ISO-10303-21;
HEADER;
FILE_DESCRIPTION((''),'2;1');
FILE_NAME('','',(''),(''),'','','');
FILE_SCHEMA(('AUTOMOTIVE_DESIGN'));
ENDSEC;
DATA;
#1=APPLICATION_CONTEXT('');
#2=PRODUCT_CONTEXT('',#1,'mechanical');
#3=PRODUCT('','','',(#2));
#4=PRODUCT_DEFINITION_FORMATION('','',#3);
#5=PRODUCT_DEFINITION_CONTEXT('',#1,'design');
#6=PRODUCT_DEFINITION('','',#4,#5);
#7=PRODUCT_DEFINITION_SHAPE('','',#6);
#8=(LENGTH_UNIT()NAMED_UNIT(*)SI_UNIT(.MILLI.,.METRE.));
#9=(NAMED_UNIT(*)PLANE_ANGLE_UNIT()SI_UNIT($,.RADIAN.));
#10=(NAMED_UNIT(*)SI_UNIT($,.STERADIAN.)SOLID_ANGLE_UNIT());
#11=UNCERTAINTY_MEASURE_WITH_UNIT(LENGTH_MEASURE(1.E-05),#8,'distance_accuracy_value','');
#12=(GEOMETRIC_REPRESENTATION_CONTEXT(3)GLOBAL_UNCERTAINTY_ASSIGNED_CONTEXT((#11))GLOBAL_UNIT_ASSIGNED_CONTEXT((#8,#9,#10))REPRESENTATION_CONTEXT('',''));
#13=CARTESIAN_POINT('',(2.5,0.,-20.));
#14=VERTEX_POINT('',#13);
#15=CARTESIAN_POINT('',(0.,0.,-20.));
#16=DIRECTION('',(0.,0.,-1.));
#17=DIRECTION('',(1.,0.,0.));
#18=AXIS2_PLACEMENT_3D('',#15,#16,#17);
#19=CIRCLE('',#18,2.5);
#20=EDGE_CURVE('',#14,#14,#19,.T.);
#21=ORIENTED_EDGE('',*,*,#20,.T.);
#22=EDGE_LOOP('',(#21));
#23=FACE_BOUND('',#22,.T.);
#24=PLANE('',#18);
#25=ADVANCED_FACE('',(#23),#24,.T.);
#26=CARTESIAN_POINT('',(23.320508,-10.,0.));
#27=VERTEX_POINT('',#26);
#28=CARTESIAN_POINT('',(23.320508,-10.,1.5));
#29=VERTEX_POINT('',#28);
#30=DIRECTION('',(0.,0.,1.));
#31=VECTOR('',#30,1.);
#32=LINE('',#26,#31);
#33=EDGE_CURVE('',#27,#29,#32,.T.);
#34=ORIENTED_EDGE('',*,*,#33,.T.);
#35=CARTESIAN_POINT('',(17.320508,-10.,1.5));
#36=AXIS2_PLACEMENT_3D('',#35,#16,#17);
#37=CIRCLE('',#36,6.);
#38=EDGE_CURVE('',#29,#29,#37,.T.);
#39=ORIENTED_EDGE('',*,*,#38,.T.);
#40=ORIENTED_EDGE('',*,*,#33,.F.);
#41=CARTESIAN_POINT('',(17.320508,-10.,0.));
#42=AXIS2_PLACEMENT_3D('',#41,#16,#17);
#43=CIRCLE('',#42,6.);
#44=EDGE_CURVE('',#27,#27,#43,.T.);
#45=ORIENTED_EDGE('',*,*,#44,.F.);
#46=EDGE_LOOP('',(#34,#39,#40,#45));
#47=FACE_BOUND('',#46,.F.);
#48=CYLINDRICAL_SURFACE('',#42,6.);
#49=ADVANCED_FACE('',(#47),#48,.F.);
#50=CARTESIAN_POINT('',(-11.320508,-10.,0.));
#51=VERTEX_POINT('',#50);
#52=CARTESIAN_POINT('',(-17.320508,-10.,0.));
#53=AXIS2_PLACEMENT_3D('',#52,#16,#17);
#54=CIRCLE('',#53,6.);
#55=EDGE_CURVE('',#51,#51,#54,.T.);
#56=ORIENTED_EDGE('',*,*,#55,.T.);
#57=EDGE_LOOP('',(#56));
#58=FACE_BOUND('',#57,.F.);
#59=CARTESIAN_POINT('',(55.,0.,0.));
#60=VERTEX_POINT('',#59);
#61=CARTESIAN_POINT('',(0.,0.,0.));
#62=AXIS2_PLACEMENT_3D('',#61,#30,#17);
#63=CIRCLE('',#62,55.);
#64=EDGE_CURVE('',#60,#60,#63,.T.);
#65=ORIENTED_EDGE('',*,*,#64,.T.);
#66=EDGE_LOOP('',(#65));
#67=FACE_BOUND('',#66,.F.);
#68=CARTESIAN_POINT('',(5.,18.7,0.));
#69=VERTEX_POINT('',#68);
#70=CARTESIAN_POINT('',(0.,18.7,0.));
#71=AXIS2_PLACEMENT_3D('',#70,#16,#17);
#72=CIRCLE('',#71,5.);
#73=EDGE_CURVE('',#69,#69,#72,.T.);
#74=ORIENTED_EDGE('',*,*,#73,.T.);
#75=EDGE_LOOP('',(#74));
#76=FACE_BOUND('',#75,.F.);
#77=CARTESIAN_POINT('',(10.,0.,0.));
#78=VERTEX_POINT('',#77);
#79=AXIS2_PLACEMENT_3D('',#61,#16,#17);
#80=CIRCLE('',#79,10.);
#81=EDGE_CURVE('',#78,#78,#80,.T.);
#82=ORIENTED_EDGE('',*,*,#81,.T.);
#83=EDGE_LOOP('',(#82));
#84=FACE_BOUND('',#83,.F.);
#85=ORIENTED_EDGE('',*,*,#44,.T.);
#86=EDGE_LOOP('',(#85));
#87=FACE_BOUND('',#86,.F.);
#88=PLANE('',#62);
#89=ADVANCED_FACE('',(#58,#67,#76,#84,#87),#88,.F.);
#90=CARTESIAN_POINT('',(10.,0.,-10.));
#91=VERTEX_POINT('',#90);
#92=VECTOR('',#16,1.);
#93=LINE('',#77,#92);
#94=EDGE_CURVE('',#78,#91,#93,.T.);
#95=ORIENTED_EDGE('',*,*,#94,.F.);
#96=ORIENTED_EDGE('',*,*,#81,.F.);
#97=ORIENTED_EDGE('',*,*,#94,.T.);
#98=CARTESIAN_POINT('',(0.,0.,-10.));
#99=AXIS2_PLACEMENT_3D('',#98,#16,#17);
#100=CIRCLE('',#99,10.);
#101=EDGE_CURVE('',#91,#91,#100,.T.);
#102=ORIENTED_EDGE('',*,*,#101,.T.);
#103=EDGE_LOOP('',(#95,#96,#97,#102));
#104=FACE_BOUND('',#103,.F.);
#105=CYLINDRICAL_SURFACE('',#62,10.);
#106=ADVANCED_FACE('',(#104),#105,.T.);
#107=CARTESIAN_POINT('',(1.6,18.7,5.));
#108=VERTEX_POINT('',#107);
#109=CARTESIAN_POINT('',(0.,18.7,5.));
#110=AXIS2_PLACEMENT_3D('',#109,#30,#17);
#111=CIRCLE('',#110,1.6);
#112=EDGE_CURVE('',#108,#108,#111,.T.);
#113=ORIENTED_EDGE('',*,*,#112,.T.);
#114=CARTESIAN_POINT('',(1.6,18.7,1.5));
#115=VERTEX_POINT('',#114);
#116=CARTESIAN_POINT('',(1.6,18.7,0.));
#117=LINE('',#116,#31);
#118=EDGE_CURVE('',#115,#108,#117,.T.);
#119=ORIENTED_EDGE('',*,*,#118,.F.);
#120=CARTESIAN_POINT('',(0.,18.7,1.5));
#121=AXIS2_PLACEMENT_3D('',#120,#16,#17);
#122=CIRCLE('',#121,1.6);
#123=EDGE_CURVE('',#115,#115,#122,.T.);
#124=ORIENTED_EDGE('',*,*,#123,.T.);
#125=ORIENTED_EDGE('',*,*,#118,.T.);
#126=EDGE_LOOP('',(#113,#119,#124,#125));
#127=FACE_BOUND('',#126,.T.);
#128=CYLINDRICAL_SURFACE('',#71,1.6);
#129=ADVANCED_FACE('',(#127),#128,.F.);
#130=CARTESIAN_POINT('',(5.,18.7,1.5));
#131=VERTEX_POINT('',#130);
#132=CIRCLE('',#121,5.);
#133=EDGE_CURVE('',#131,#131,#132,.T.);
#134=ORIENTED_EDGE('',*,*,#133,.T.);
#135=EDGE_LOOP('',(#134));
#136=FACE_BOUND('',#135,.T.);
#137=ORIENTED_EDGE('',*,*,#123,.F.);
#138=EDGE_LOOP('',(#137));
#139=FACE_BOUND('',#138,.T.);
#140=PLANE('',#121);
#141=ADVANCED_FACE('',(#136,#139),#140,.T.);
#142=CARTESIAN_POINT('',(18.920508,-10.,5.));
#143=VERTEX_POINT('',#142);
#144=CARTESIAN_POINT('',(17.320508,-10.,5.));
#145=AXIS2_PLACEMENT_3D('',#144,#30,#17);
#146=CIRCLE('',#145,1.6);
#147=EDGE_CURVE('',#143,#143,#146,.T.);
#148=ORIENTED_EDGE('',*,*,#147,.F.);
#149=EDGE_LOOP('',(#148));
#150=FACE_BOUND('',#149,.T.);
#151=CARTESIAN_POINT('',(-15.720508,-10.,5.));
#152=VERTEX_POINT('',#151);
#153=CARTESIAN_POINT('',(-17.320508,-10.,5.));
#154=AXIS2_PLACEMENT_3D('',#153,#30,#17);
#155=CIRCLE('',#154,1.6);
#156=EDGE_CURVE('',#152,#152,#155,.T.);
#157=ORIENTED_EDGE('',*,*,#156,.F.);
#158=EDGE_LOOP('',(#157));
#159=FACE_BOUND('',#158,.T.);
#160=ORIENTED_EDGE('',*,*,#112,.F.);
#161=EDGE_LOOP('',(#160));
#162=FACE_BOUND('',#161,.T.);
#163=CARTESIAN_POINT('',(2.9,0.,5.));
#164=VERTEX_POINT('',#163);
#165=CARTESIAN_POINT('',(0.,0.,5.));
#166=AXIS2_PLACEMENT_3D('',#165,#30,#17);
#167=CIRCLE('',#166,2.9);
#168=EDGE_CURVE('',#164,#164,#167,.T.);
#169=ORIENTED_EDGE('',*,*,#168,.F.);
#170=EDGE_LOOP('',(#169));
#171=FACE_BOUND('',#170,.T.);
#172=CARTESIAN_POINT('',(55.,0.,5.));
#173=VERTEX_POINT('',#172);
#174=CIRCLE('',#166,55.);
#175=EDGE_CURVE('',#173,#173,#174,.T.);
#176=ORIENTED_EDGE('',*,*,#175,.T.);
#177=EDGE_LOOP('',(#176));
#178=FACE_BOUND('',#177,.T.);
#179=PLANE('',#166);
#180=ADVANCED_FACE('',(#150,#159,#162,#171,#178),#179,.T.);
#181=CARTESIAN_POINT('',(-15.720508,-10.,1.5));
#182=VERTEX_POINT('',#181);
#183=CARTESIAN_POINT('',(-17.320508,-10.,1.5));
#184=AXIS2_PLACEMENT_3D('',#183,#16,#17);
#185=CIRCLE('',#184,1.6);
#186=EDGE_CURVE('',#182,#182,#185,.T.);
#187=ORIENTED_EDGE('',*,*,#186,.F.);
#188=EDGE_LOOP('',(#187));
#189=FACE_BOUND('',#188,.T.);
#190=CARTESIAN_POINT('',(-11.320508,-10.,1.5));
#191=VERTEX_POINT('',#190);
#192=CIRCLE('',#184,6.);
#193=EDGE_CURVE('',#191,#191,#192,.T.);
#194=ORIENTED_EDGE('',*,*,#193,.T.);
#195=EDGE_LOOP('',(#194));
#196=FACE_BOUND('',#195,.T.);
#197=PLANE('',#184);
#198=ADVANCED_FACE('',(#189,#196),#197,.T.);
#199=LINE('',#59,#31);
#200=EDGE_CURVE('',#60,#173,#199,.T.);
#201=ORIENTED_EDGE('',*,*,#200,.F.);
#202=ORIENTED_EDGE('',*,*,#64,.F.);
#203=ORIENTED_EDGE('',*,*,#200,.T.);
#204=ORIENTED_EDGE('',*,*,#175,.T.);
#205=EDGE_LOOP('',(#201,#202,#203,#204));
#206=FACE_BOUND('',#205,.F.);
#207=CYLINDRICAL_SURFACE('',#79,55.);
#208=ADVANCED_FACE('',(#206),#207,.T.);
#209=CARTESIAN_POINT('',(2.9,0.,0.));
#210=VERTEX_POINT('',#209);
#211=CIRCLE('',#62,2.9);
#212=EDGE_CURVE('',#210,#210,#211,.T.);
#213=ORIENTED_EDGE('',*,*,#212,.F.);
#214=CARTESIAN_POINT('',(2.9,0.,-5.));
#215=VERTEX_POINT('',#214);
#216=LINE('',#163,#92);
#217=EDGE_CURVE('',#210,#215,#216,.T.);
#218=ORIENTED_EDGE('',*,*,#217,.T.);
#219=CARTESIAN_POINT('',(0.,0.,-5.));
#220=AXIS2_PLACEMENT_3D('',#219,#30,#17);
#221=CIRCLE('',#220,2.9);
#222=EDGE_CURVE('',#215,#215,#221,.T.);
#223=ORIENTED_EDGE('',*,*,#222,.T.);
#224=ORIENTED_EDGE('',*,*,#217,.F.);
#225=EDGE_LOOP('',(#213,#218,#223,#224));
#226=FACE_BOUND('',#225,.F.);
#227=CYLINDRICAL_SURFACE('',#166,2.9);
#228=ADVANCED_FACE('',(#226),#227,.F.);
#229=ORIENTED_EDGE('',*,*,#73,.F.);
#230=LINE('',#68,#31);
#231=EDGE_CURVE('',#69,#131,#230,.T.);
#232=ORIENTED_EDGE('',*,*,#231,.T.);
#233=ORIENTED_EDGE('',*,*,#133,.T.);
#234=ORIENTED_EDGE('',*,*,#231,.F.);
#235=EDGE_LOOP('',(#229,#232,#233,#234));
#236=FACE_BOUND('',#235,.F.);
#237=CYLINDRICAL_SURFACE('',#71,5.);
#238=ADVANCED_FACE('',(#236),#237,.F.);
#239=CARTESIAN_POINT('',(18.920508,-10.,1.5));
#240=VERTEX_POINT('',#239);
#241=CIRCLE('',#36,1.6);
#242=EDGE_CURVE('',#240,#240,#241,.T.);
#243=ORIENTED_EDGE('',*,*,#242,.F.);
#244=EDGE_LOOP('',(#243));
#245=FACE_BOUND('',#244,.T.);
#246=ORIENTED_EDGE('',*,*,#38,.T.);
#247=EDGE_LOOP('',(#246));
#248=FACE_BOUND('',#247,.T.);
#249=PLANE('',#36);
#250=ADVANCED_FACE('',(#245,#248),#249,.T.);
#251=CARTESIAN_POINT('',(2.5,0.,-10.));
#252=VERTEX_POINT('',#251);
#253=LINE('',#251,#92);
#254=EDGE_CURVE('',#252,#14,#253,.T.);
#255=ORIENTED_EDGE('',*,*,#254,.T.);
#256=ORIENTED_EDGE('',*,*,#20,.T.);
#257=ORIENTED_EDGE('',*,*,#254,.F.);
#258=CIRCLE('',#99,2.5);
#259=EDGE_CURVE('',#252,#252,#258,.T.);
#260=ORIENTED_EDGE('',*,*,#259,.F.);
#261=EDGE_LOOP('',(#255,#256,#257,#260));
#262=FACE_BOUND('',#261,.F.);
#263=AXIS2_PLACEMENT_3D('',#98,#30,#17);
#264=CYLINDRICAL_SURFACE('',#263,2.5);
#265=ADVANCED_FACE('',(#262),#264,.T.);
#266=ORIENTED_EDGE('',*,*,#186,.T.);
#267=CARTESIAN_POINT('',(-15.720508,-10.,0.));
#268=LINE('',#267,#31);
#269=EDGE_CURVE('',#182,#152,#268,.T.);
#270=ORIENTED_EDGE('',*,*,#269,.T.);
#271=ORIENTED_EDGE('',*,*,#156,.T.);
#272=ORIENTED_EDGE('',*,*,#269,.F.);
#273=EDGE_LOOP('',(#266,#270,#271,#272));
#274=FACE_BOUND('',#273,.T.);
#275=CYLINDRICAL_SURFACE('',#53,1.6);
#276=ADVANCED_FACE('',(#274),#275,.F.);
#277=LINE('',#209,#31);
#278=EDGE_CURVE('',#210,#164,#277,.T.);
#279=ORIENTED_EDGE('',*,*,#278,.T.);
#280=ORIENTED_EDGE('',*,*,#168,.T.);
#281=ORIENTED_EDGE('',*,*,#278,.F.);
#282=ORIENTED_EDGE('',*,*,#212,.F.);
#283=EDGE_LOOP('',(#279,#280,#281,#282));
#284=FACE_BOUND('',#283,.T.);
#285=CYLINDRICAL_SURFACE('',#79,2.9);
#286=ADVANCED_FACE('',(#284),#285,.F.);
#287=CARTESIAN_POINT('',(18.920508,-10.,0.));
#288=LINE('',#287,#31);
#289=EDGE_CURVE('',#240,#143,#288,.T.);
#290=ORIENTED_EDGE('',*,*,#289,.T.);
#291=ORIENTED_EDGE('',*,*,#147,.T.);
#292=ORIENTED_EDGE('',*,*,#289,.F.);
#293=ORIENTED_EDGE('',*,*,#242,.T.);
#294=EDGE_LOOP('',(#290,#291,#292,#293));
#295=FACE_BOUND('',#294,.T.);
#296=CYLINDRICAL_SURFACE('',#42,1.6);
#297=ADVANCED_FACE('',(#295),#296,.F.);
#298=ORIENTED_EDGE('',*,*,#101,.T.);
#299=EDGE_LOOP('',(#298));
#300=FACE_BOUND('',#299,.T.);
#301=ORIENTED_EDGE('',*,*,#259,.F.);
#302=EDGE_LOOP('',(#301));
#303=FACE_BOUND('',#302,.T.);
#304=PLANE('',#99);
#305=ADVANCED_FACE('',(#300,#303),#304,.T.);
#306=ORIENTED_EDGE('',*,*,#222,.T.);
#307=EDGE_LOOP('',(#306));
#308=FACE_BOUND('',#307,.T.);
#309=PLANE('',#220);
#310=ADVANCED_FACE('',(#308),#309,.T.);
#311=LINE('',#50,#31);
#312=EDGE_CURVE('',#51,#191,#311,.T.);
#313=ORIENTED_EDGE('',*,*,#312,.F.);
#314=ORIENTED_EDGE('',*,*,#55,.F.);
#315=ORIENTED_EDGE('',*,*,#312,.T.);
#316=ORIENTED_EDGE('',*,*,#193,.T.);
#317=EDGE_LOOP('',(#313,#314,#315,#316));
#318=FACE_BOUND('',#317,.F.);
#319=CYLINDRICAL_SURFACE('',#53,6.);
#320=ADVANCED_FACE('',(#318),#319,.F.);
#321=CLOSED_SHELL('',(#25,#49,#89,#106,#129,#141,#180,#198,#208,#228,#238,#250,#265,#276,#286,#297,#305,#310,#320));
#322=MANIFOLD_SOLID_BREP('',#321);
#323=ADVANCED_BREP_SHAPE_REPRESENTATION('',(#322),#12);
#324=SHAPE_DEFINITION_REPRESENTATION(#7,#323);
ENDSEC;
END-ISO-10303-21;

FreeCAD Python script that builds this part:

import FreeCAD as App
import Part
import Sketcher
Q = App.Units.Quantity

doc = App.newDocument("Part")
body = doc.addObject("PartDesign::Body", "Body")

# Sketch on XY plane
sketch1 = doc.addObject("Sketcher::SketchObject", "Sketch")
body.addObject(sketch1)
sketch1.AttachmentSupport = (doc.XY_Plane, [""])
sketch1.MapMode = "FlatFace"
sketch1.addGeometry(Part.Circle(App.Vector(0, 0, 0), App.Vector(0, 0, 1), 55), False)
sketch1.addGeometry(Part.Circle(App.Vector(-17.3, -10, 0), App.Vector(0, 0, 1), 1.6), False)
sketch1.addGeometry(Part.Circle(App.Vector(17.3, -10, 0), App.Vector(0, 0, 1), 1.6), False)
sketch1.addGeometry(Part.Circle(App.Vector(0, 0, 0), App.Vector(0, 0, 1), 2.9), False)
sketch1.addGeometry(Part.Circle(App.Vector(0, 18.7, 0), App.Vector(0, 0, 1), 1.6), False)
sketch1.addConstraint(Sketcher.Constraint("Coincident", 0, 3, -1, 1))
sketch1.addConstraint(Sketcher.Constraint("Coincident", 3, 3, -1, 1))
sketch1.addConstraint(Sketcher.Constraint("Equal", 1, 2))
sketch1.addConstraint(Sketcher.Constraint("Equal", 2, 4))
sketch1.addConstraint(Sketcher.Constraint("Symmetric", 1, 3, 2, 3, -2))
sketch1.addConstraint(Sketcher.Constraint("PointOnObject", 4, 3, -2))
sketch1.addConstraint(Sketcher.Constraint("Diameter", 0, Q("110 mm")))
sketch1.addConstraint(Sketcher.Constraint("Diameter", 1, Q("3.2 mm")))
sketch1.addConstraint(Sketcher.Constraint("Diameter", 3, Q("5.8 mm")))
sketch1.addConstraint(Sketcher.Constraint("DistanceY", 1, 3, -1, 1, Q("10 mm")))
sketch1.addConstraint(Sketcher.Constraint("DistanceY", -1, 1, 4, 3, Q("18.7 mm")))
sketch1.addConstraint(Sketcher.Constraint("DistanceX", 1, 3, -1, 1, Q("17.320508 mm")))
pad1 = doc.addObject("PartDesign::Pad", "Pad")
body.addObject(pad1)
pad1.Profile = sketch1
pad1.Length = 5

# Sketch on XY plane
sketch2 = doc.addObject("Sketcher::SketchObject", "Sketch001")
body.addObject(sketch2)
sketch2.AttachmentSupport = (doc.XY_Plane, [""])
sketch2.MapMode = "FlatFace"
sketch2.addGeometry(Part.Circle(App.Vector(0, 0, 0), App.Vector(0, 0, 1), 10), False)
sketch2.addConstraint(Sketcher.Constraint("Coincident", 0, 3, -1, 1))
sketch2.addConstraint(Sketcher.Constraint("Diameter", 0, Q("20 mm")))
pad2 = doc.addObject("PartDesign::Pad", "Pad001")
body.addObject(pad2)
pad2.Profile = sketch2
pad2.Length = 10
pad2.Reversed = True

# Sketch on XY plane
sketch3 = doc.addObject("Sketcher::SketchObject", "Sketch002")
body.addObject(sketch3)
sketch3.AttachmentSupport = (doc.XY_Plane, [""])
sketch3.MapMode = "FlatFace"
sketch3.AttachmentOffset = App.Placement(App.Vector(0, 0, 5), App.Rotation())
sketch3.addGeometry(Part.Circle(App.Vector(0, 0, 0), App.Vector(0, 0, 1), 2.9), False)
sketch3.addConstraint(Sketcher.Constraint("Coincident", 0, 3, -1, 1))
sketch3.addConstraint(Sketcher.Constraint("Diameter", 0, Q("5.8 mm")))
pocket1 = doc.addObject("PartDesign::Pocket", "Pocket")
body.addObject(pocket1)
pocket1.Profile = sketch3
pocket1.Length = 10

# Sketch on XY plane
sketch4 = doc.addObject("Sketcher::SketchObject", "Sketch003")
body.addObject(sketch4)
sketch4.AttachmentSupport = (doc.XY_Plane, [""])
sketch4.MapMode = "FlatFace"
sketch4.AttachmentOffset = App.Placement(App.Vector(0, 0, -10), App.Rotation())
sketch4.addGeometry(Part.Circle(App.Vector(0, 0, 0), App.Vector(0, 0, 1), 2.5), False)
sketch4.addConstraint(Sketcher.Constraint("Coincident", 0, 3, -1, 1))
sketch4.addConstraint(Sketcher.Constraint("Diameter", 0, Q("5 mm")))
pad3 = doc.addObject("PartDesign::Pad", "Pad002")
body.addObject(pad3)
pad3.Profile = sketch4
pad3.Length = 10
pad3.Reversed = True

# Sketch on XY plane
sketch5 = doc.addObject("Sketcher::SketchObject", "Sketch004")
body.addObject(sketch5)
sketch5.AttachmentSupport = (doc.XY_Plane, [""])
sketch5.MapMode = "FlatFace"
sketch5.addGeometry(Part.Circle(App.Vector(-17, -10, 0), App.Vector(0, 0, 1), 6), False)
sketch5.addGeometry(Part.Circle(App.Vector(17, -10, 0), App.Vector(0, 0, 1), 6), False)
sketch5.addGeometry(Part.Circle(App.Vector(0, 19, 0), App.Vector(0, 0, 1), 5), False)
sketch5.addConstraint(Sketcher.Constraint("Equal", 0, 1))
sketch5.addConstraint(Sketcher.Constraint("Symmetric", 0, 3, 1, 3, -2))
sketch5.addConstraint(Sketcher.Constraint("PointOnObject", 2, 3, -2))
sketch5.addConstraint(Sketcher.Constraint("Diameter", 0, Q("12 mm")))
sketch5.addConstraint(Sketcher.Constraint("Diameter", 2, Q("10 mm")))
sketch5.addConstraint(Sketcher.Constraint("DistanceY", 0, 3, -1, 1, Q("10 mm")))
sketch5.addConstraint(Sketcher.Constraint("DistanceY", -1, 1, 2, 3, Q("18.7 mm")))
sketch5.addConstraint(Sketcher.Constraint("DistanceX", 0, 3, -1, 1, Q("17.320508 mm")))
pocket2 = doc.addObject("PartDesign::Pocket", "Pocket001")
body.addObject(pocket2)
pocket2.Profile = sketch5
pocket2.Length = 1.5
pocket2.Reversed = True

doc.recompute()
